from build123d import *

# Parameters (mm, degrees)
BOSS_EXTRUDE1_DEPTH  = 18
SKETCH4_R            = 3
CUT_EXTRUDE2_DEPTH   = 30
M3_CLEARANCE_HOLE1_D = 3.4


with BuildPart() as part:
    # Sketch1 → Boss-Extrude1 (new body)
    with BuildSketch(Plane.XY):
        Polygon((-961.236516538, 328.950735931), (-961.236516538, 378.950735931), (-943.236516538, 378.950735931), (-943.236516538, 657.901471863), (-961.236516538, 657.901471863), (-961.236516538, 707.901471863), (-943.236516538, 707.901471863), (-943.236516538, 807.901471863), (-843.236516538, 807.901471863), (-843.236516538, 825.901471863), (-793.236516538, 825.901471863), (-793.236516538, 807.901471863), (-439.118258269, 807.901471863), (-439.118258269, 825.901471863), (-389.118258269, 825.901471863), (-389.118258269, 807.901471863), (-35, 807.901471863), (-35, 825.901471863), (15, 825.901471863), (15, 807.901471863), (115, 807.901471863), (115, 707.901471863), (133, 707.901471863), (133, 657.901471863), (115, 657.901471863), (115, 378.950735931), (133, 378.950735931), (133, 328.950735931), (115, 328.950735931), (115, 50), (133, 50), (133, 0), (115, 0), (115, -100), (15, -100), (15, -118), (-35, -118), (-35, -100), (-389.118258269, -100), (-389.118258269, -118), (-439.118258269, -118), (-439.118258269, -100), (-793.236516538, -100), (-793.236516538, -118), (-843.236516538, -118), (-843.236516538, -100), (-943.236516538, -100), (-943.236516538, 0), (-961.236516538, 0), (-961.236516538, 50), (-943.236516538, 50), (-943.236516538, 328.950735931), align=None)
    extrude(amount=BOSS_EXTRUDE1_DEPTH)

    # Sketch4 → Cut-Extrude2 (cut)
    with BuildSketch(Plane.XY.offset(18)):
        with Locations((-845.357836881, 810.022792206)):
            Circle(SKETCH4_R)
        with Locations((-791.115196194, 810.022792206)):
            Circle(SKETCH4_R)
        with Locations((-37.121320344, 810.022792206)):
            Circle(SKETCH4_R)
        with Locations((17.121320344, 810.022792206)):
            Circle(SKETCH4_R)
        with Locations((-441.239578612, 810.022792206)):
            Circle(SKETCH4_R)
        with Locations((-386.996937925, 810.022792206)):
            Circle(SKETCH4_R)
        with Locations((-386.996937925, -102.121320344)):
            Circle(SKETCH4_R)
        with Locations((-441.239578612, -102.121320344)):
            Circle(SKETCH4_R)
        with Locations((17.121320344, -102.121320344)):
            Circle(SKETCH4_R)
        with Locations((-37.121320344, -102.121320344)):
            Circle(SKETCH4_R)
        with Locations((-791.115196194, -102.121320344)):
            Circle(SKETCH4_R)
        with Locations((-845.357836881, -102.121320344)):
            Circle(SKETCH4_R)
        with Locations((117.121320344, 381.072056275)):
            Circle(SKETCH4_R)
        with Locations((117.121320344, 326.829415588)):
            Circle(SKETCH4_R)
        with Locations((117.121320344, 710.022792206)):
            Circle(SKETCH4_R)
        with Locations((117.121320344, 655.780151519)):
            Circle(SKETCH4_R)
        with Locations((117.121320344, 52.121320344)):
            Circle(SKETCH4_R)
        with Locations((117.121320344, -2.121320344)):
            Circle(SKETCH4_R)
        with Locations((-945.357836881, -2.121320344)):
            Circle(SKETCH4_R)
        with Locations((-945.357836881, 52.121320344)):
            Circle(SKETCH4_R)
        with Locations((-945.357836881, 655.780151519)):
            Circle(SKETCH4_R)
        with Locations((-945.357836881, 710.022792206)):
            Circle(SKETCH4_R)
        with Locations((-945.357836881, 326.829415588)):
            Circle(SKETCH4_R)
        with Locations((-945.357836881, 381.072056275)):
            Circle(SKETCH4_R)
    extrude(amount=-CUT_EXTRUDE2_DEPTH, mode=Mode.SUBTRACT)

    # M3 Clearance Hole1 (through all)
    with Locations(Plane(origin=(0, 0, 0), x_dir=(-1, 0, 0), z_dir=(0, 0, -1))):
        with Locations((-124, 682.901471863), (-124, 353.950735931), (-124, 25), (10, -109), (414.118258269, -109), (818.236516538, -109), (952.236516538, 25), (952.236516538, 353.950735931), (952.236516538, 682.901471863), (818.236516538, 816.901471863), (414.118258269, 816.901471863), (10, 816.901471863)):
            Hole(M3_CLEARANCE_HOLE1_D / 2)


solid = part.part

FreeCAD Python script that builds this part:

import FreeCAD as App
import Part
import Sketcher
Q = App.Units.Quantity


def add_polygon(sketch, points):
    """Adds a closed chain of lines whose ends are joined by coincident constraints."""
    first, n = sketch.GeometryCount, len(points)
    for a, b in zip(points, points[1:] + points[:1]):
        sketch.addGeometry(Part.LineSegment(App.Vector(*a, 0), App.Vector(*b, 0)), False)
    for i in range(n):
        sketch.addConstraint(Sketcher.Constraint("Coincident", first + i, 2, first + (i + 1) % n, 1))

doc = App.newDocument("Part")
params = doc.addObject("Spreadsheet::Sheet", "Params")
for row, (alias, value) in enumerate([
    ("sketch1_width", "18 mm"),
    ("sketch1_width2", "100 mm"),
    ("sketch1_width3", "50 mm"),
    ("pad1_length", "18 mm"),
    ("sketch2_diameter", "6 mm"),
    ("pocket1_length", "30 mm"),
    ("sketch3_diameter", "3.4 mm"),
    ("hole_diameter", "3.4 mm"),
], start=1):
    params.set(f"A{row}", alias)
    params.set(f"B{row}", "=" + value)
    params.setAlias(f"B{row}", alias)

body = doc.addObject("PartDesign::Body", "Body")

# Sketch on XY plane
sketch1 = body.newObject("Sketcher::SketchObject", "Sketch")
sketch1.AttachmentSupport = (doc.getObject("XY_Plane"), [""])
sketch1.MapMode = "FlatFace"
add_polygon(sketch1, [(-961.236517, 378.950736), (-961.236517, 328.950736), (-943.236517, 328.950736), (-943.236517, 50), (-961.236517, 50), (-961.236517, 0), (-943.236517, 0), (-943.236517, -100), (-843.236517, -100), (-843.236517, -118), (-793.236517, -118), (-793.236517, -100), (-439.118258, -100), (-439.118258, -118), (-389.118258, -118), (-389.118258, -100), (-35, -100), (-35, -118), (15, -118), (15, -100), (115, -100), (115, 0), (133, 0), (133, 50), (115, 50), (115, 328.950736), (133, 328.950736), (133, 378.950736), (115, 378.950736), (115, 657.901472), (133, 657.901472), (133, 707.901472), (115, 707.901472), (115, 807.901472), (15, 807.901472), (15, 825.901472), (-35, 825.901472), (-35, 807.901472), (-389.118258, 807.901472), (-389.118258, 825.901472), (-439.118258, 825.901472), (-439.118258, 807.901472), (-793.236517, 807.901472), (-793.236517, 825.901472), (-843.236517, 825.901472), (-843.236517, 807.901472), (-943.236517, 807.901472), (-943.236517, 707.901472), (-961.236517, 707.901472), (-961.236517, 657.901472), (-943.236517, 657.901472), (-943.236517, 378.950736)])  # lines 0-51
sketch1.addConstraint(Sketcher.Constraint("Vertical", 0))
sketch1.addConstraint(Sketcher.Constraint("Horizontal", 1))
sketch1.addConstraint(Sketcher.Constraint("Vertical", 2))
sketch1.addConstraint(Sketcher.Constraint("Horizontal", 3))
sketch1.addConstraint(Sketcher.Constraint("Vertical", 4))
sketch1.addConstraint(Sketcher.Constraint("Horizontal", 5))
sketch1.addConstraint(Sketcher.Constraint("Vertical", 6))
sketch1.addConstraint(Sketcher.Constraint("Horizontal", 7))
sketch1.addConstraint(Sketcher.Constraint("Vertical", 8))
sketch1.addConstraint(Sketcher.Constraint("Horizontal", 9))
sketch1.addConstraint(Sketcher.Constraint("Vertical", 10))
sketch1.addConstraint(Sketcher.Constraint("Horizontal", 11))
sketch1.addConstraint(Sketcher.Constraint("Vertical", 12))
sketch1.addConstraint(Sketcher.Constraint("Horizontal", 13))
sketch1.addConstraint(Sketcher.Constraint("Vertical", 14))
sketch1.addConstraint(Sketcher.Constraint("Horizontal", 15))
sketch1.addConstraint(Sketcher.Constraint("Vertical", 16))
sketch1.addConstraint(Sketcher.Constraint("Horizontal", 17))
sketch1.addConstraint(Sketcher.Constraint("Vertical", 18))
sketch1.addConstraint(Sketcher.Constraint("Horizontal", 19))
sketch1.addConstraint(Sketcher.Constraint("Vertical", 20))
sketch1.addConstraint(Sketcher.Constraint("Horizontal", 21))
sketch1.addConstraint(Sketcher.Constraint("Vertical", 22))
sketch1.addConstraint(Sketcher.Constraint("Horizontal", 23))
sketch1.addConstraint(Sketcher.Constraint("Vertical", 24))
sketch1.addConstraint(Sketcher.Constraint("Horizontal", 25))
sketch1.addConstraint(Sketcher.Constraint("Vertical", 26))
sketch1.addConstraint(Sketcher.Constraint("Horizontal", 27))
sketch1.addConstraint(Sketcher.Constraint("Vertical", 28))
sketch1.addConstraint(Sketcher.Constraint("Horizontal", 29))
sketch1.addConstraint(Sketcher.Constraint("Vertical", 30))
sketch1.addConstraint(Sketcher.Constraint("Horizontal", 31))
sketch1.addConstraint(Sketcher.Constraint("Vertical", 32))
sketch1.addConstraint(Sketcher.Constraint("Horizontal", 33))
sketch1.addConstraint(Sketcher.Constraint("Vertical", 34))
sketch1.addConstraint(Sketcher.Constraint("Horizontal", 35))
sketch1.addConstraint(Sketcher.Constraint("Vertical", 36))
sketch1.addConstraint(Sketcher.Constraint("Horizontal", 37))
sketch1.addConstraint(Sketcher.Constraint("Vertical", 38))
sketch1.addConstraint(Sketcher.Constraint("Horizontal", 39))
sketch1.addConstraint(Sketcher.Constraint("Vertical", 40))
sketch1.addConstraint(Sketcher.Constraint("Horizontal", 41))
sketch1.addConstraint(Sketcher.Constraint("Vertical", 42))
sketch1.addConstraint(Sketcher.Constraint("Horizontal", 43))
sketch1.addConstraint(Sketcher.Constraint("Vertical", 44))
sketch1.addConstraint(Sketcher.Constraint("Horizontal", 45))
sketch1.addConstraint(Sketcher.Constraint("Vertical", 46))
sketch1.addConstraint(Sketcher.Constraint("Horizontal", 47))
sketch1.addConstraint(Sketcher.Constraint("Vertical", 48))
sketch1.addConstraint(Sketcher.Constraint("Horizontal", 49))
sketch1.addConstraint(Sketcher.Constraint("Vertical", 50))
sketch1.addConstraint(Sketcher.Constraint("Horizontal", 51))
sketch1.addConstraint(Sketcher.Constraint("PointOnObject", 4, 2, -1))
sketch1.addConstraint(Sketcher.Constraint("PointOnObject", 20, 2, -1))
sketch1.addConstraint(Sketcher.Constraint("Horizontal", 7, 2, 10, 2))
sketch1.addConstraint(Sketcher.Constraint("Horizontal", 9, 2, 12, 2))
sketch1.addConstraint(Sketcher.Constraint("Horizontal", 11, 2, 14, 2))
sketch1.addConstraint(Sketcher.Constraint("Horizontal", 13, 2, 16, 2))
sketch1.addConstraint(Sketcher.Constraint("Horizontal", 15, 2, 18, 2))
sketch1.addConstraint(Sketcher.Constraint("Horizontal", 3, 2, 22, 2))
sketch1.addConstraint(Sketcher.Constraint("Horizontal", 1, 2, 24, 2))
sketch1.addConstraint(Sketcher.Constraint("Horizontal", 33, 2, 36, 2))
sketch1.addConstraint(Sketcher.Constraint("Horizontal", 35, 2, 38, 2))
sketch1.addConstraint(Sketcher.Constraint("Horizontal", 37, 2, 40, 2))
sketch1.addConstraint(Sketcher.Constraint("Horizontal", 39, 2, 42, 2))
sketch1.addConstraint(Sketcher.Constraint("Horizontal", 41, 2, 44, 2))
sketch1.addConstraint(Sketcher.Constraint("Horizontal", 31, 2, 46, 2))
sketch1.addConstraint(Sketcher.Constraint("Horizontal", 29, 2, 48, 2))
sketch1.addConstraint(Sketcher.Constraint("Horizontal", 27, 2, 50, 2))
sketch1.addConstraint(Sketcher.Constraint("Vertical", 0, 2, 3, 2))
sketch1.addConstraint(Sketcher.Constraint("Vertical", 2, 2, 5, 2))
sketch1.addConstraint(Sketcher.Constraint("Vertical", 20, 2, 23, 2))
sketch1.addConstraint(Sketcher.Constraint("Vertical", 22, 2, 25, 2))
sketch1.addConstraint(Sketcher.Constraint("Vertical", 24, 2, 27, 2))
sketch1.addConstraint(Sketcher.Constraint("Vertical", 26, 2, 29, 2))
sketch1.addConstraint(Sketcher.Constraint("Vertical", 28, 2, 31, 2))
sketch1.addConstraint(Sketcher.Constraint("Vertical", 18, 2, 33, 2))
sketch1.addConstraint(Sketcher.Constraint("Vertical", 16, 2, 35, 2))
sketch1.addConstraint(Sketcher.Constraint("Vertical", 14, 2, 37, 2))
sketch1.addConstraint(Sketcher.Constraint("Vertical", 12, 2, 39, 2))
sketch1.addConstraint(Sketcher.Constraint("Vertical", 10, 2, 41, 2))
sketch1.addConstraint(Sketcher.Constraint("Vertical", 8, 2, 43, 2))
sketch1.addConstraint(Sketcher.Constraint("Vertical", 6, 2, 45, 2))
sketch1.addConstraint(Sketcher.Constraint("Vertical", 4, 2, 47, 2))
sketch1.addConstraint(Sketcher.Constraint("Vertical", 46, 2, 49, 2))
sketch1.addConstraint(Sketcher.Constraint("Equal", 9, 13))
sketch1.addConstraint(Sketcher.Constraint("Equal", 11, 15))
sketch1.addConstraint(Sketcher.Constraint("Equal", 13, 17))
sketch1.addConstraint(Sketcher.Constraint("Equal", 7, 19))
sketch1.addConstraint(Sketcher.Constraint("Equal", 5, 21))
sketch1.addConstraint(Sketcher.Constraint("Equal", 43, 0))
sketch1.addConstraint(Sketcher.Constraint("Equal", 0, 4))
sketch1.addConstraint(Sketcher.Constraint("Equal", 45, 6))
sketch1.addConstraint(Sketcher.Constraint("Equal", 51, 8))
sketch1.addConstraint(Sketcher.Constraint("Equal", 24, 28))
sketch1.addConstraint(Sketcher.Constraint("Equal", 26, 30))
sketch1.addConstraint(Sketcher.Constraint("Equal", 20, 32))
sketch1.addConstraint(Sketcher.Constraint("Equal", 18, 34))
sketch1.addConstraint(Sketcher.Constraint("DistanceX", 1, 1, 1, 2, Q("18 mm")))
sketch1.addConstraint(Sketcher.Constraint("DistanceX", 7, 1, 7, 2, Q("100 mm")))
sketch1.addConstraint(Sketcher.Constraint("DistanceX", 9, 1, 9, 2, Q("50 mm")))
sketch1.addConstraint(Sketcher.Constraint("DistanceX", 15, 2, -1, 1, Q("35 mm")))
sketch1.addConstraint(Sketcher.Constraint("DistanceX", 11, 1, 11, 2, Q("354.118258 mm")))
sketch1.addConstraint(Sketcher.Constraint("DistanceY", 2, 2, 2, 1, Q("278.950736 mm")))
sketch1.setExpression("Constraints[150]", "Params.sketch1_width")
sketch1.setExpression("Constraints[151]", "Params.sketch1_width2")
sketch1.setExpression("Constraints[152]", "Params.sketch1_width3")
pad1 = body.newObject("PartDesign::Pad", "Pad")
pad1.Profile = sketch1
pad1.setExpression("Length", "Params.pad1_length")

# Sketch on XY plane
sketch2 = body.newObject("Sketcher::SketchObject", "Sketch001")
sketch2.AttachmentSupport = (doc.getObject("XY_Plane"), [""])
sketch2.MapMode = "FlatFace"
sketch2.AttachmentOffset = App.Placement(App.Vector(0, 0, 18), App.Rotation())
sketch2.addGeometry(Part.Circle(App.Vector(-845.357837, 810.022792, 0), App.Vector(0, 0, 1), 3), False)
sketch2.addGeometry(Part.Circle(App.Vector(-791.115196, 810.022792, 0), App.Vector(0, 0, 1), 3), False)
sketch2.addGeometry(Part.Circle(App.Vector(-37.12132, 810.022792, 0), App.Vector(0, 0, 1), 3), False)
sketch2.addGeometry(Part.Circle(App.Vector(17.12132, 810.022792, 0), App.Vector(0, 0, 1), 3), False)
sketch2.addGeometry(Part.Circle(App.Vector(-441.239579, 810.022792, 0), App.Vector(0, 0, 1), 3), False)
sketch2.addGeometry(Part.Circle(App.Vector(-386.996938, 810.022792, 0), App.Vector(0, 0, 1), 3), False)
sketch2.addGeometry(Part.Circle(App.Vector(-386.996938, -102.12132, 0), App.Vector(0, 0, 1), 3), False)
sketch2.addGeometry(Part.Circle(App.Vector(-441.239579, -102.12132, 0), App.Vector(0, 0, 1), 3), False)
sketch2.addGeometry(Part.Circle(App.Vector(17.12132, -102.12132, 0), App.Vector(0, 0, 1), 3), False)
sketch2.addGeometry(Part.Circle(App.Vector(-37.12132, -102.12132, 0), App.Vector(0, 0, 1), 3), False)
sketch2.addGeometry(Part.Circle(App.Vector(-791.115196, -102.12132, 0), App.Vector(0, 0, 1), 3), False)
sketch2.addGeometry(Part.Circle(App.Vector(-845.357837, -102.12132, 0), App.Vector(0, 0, 1), 3), False)
sketch2.addGeometry(Part.Circle(App.Vector(117.12132, 381.072056, 0), App.Vector(0, 0, 1), 3), False)
sketch2.addGeometry(Part.Circle(App.Vector(117.12132, 326.829416, 0), App.Vector(0, 0, 1), 3), False)
sketch2.addGeometry(Part.Circle(App.Vector(117.12132, 710.022792, 0), App.Vector(0, 0, 1), 3), False)
sketch2.addGeometry(Part.Circle(App.Vector(117.12132, 655.780152, 0), App.Vector(0, 0, 1), 3), False)
sketch2.addGeometry(Part.Circle(App.Vector(117.12132, 52.12132, 0), App.Vector(0, 0, 1), 3), False)
sketch2.addGeometry(Part.Circle(App.Vector(117.12132, -2.12132, 0), App.Vector(0, 0, 1), 3), False)
sketch2.addGeometry(Part.Circle(App.Vector(-945.357837, -2.12132, 0), App.Vector(0, 0, 1), 3), False)
sketch2.addGeometry(Part.Circle(App.Vector(-945.357837, 52.12132, 0), App.Vector(0, 0, 1), 3), False)
sketch2.addGeometry(Part.Circle(App.Vector(-945.357837, 655.780152, 0), App.Vector(0, 0, 1), 3), False)
sketch2.addGeometry(Part.Circle(App.Vector(-945.357837, 710.022792, 0), App.Vector(0, 0, 1), 3), False)
sketch2.addGeometry(Part.Circle(App.Vector(-945.357837, 326.829416, 0), App.Vector(0, 0, 1), 3), False)
sketch2.addGeometry(Part.Circle(App.Vector(-945.357837, 381.072056, 0), App.Vector(0, 0, 1), 3), False)
sketch2.addConstraint(Sketcher.Constraint("Equal", 0, 1))
sketch2.addConstraint(Sketcher.Constraint("Equal", 1, 2))
sketch2.addConstraint(Sketcher.Constraint("Equal", 2, 3))
sketch2.addConstraint(Sketcher.Constraint("Equal", 3, 4))
sketch2.addConstraint(Sketcher.Constraint("Equal", 4, 5))
sketch2.addConstraint(Sketcher.Constraint("Equal", 5, 6))
sketch2.addConstraint(Sketcher.Constraint("Equal", 6, 7))
sketch2.addConstraint(Sketcher.Constraint("Equal", 7, 8))
sketch2.addConstraint(Sketcher.Constraint("Equal", 8, 9))
sketch2.addConstraint(Sketcher.Constraint("Equal", 9, 10))
sketch2.addConstraint(Sketcher.Constraint("Equal", 10, 11))
sketch2.addConstraint(Sketcher.Constraint("Equal", 11, 12))
sketch2.addConstraint(Sketcher.Constraint("Equal", 12, 13))
sketch2.addConstraint(Sketcher.Constraint("Equal", 13, 14))
sketch2.addConstraint(Sketcher.Constraint("Equal", 14, 15))
sketch2.addConstraint(Sketcher.Constraint("Equal", 15, 16))
sketch2.addConstraint(Sketcher.Constraint("Equal", 16, 17))
sketch2.addConstraint(Sketcher.Constraint("Equal", 17, 18))
sketch2.addConstraint(Sketcher.Constraint("Equal", 18, 19))
sketch2.addConstraint(Sketcher.Constraint("Equal", 19, 20))
sketch2.addConstraint(Sketcher.Constraint("Equal", 20, 21))
sketch2.addConstraint(Sketcher.Constraint("Equal", 21, 22))
sketch2.addConstraint(Sketcher.Constraint("Equal", 22, 23))
sketch2.addConstraint(Sketcher.Constraint("Horizontal", 0, 3, 1, 3))
sketch2.addConstraint(Sketcher.Constraint("Horizontal", 1, 3, 2, 3))
sketch2.addConstraint(Sketcher.Constraint("Horizontal", 2, 3, 3, 3))
sketch2.addConstraint(Sketcher.Constraint("Horizontal", 3, 3, 4, 3))
sketch2.addConstraint(Sketcher.Constraint("Horizontal", 4, 3, 5, 3))
sketch2.addConstraint(Sketcher.Constraint("Horizontal", 6, 3, 7, 3))
sketch2.addConstraint(Sketcher.Constraint("Horizontal", 7, 3, 8, 3))
sketch2.addConstraint(Sketcher.Constraint("Horizontal", 8, 3, 9, 3))
sketch2.addConstraint(Sketcher.Constraint("Horizontal", 9, 3, 10, 3))
sketch2.addConstraint(Sketcher.Constraint("Horizontal", 10, 3, 11, 3))
sketch2.addConstraint(Sketcher.Constraint("Horizontal", 17, 3, 18, 3))
sketch2.addConstraint(Sketcher.Constraint("Horizontal", 16, 3, 19, 3))
sketch2.addConstraint(Sketcher.Constraint("Horizontal", 15, 3, 20, 3))
sketch2.addConstraint(Sketcher.Constraint("Horizontal", 14, 3, 21, 3))
sketch2.addConstraint(Sketcher.Constraint("Horizontal", 13, 3, 22, 3))
sketch2.addConstraint(Sketcher.Constraint("Horizontal", 12, 3, 23, 3))
sketch2.addConstraint(Sketcher.Constraint("Vertical", 5, 3, 6, 3))
sketch2.addConstraint(Sketcher.Constraint("Vertical", 4, 3, 7, 3))
sketch2.addConstraint(Sketcher.Constraint("Vertical", 3, 3, 8, 3))
sketch2.addConstraint(Sketcher.Constraint("Vertical", 2, 3, 9, 3))
sketch2.addConstraint(Sketcher.Constraint("Vertical", 1, 3, 10, 3))
sketch2.addConstraint(Sketcher.Constraint("Vertical", 0, 3, 11, 3))
sketch2.addConstraint(Sketcher.Constraint("Vertical", 12, 3, 13, 3))
sketch2.addConstraint(Sketcher.Constraint("Vertical", 13, 3, 14, 3))
sketch2.addConstraint(Sketcher.Constraint("Vertical", 14, 3, 15, 3))
sketch2.addConstraint(Sketcher.Constraint("Vertical", 15, 3, 16, 3))
sketch2.addConstraint(Sketcher.Constraint("Vertical", 16, 3, 17, 3))
sketch2.addConstraint(Sketcher.Constraint("Vertical", 18, 3, 19, 3))
sketch2.addConstraint(Sketcher.Constraint("Vertical", 19, 3, 20, 3))
sketch2.addConstraint(Sketcher.Constraint("Vertical", 20, 3, 21, 3))
sketch2.addConstraint(Sketcher.Constraint("Vertical", 21, 3, 22, 3))
sketch2.addConstraint(Sketcher.Constraint("Vertical", 22, 3, 23, 3))
sketch2.addConstraint(Sketcher.Constraint("Diameter", 0, Q("6 mm")))
sketch2.addConstraint(Sketcher.Constraint("DistanceX", 3, 3, 12, 3, Q("100 mm")))
sketch2.addConstraint(Sketcher.Constraint("DistanceY", 14, 3, 3, 3, Q("100 mm")))
sketch2.addConstraint(Sketcher.Constraint("DistanceY", 8, 3, 17, 3, Q("100 mm")))
sketch2.addConstraint(Sketcher.Constraint("DistanceX", 18, 3, 11, 3, Q("100 mm")))
sketch2.addConstraint(Sketcher.Constraint("DistanceX", 4, 3, 3, 3, Q("458.360899 mm")))
sketch2.addConstraint(Sketcher.Constraint("DistanceX", 0, 3, 5, 3, Q("458.360899 mm")))
sketch2.addConstraint(Sketcher.Constraint("DistanceX", 2, 3, -1, 1, Q("37.12132 mm")))
sketch2.addConstraint(Sketcher.Constraint("DistanceX", -1, 1, 3, 3, Q("17.12132 mm")))
sketch2.addConstraint(Sketcher.Constraint("DistanceY", 6, 3, -1, 1, Q("102.12132 mm")))
sketch2.addConstraint(Sketcher.Constraint("DistanceY", -1, 1, 15, 3, Q("655.780152 mm")))
sketch2.addConstraint(Sketcher.Constraint("DistanceY", -1, 1, 16, 3, Q("52.12132 mm")))
sketch2.addConstraint(Sketcher.Constraint("DistanceX", 0, 3, 1, 3, Q("54.242641 mm")))
sketch2.addConstraint(Sketcher.Constraint("DistanceX", 0, 3, 4, 3, Q("404.118258 mm")))
sketch2.addConstraint(Sketcher.Constraint("DistanceY", 13, 3, 12, 3, Q("54.242641 mm")))
sketch2.addConstraint(Sketcher.Constraint("DistanceY", 15, 3, 14, 3, Q("54.242641 mm")))
sketch2.addConstraint(Sketcher.Constraint("DistanceY", -1, 1, 12, 3, Q("381.072056 mm")))
sketch2.setExpression("Constraints[55]", "Params.sketch2_diameter")
pocket1 = body.newObject("PartDesign::Pocket", "Pocket")
pocket1.Profile = sketch2
pocket1.setExpression("Length", "Params.pocket1_length")

# Sketch on XY plane
sketch3 = body.newObject("Sketcher::SketchObject", "Sketch002")
sketch3.AttachmentSupport = (doc.getObject("XY_Plane"), [""])
sketch3.MapMode = "FlatFace"
sketch3.addGeometry(Part.Circle(App.Vector(124, 682.901472, 0), App.Vector(0, 0, 1), 1.7), False)
sketch3.addGeometry(Part.Circle(App.Vector(124, 353.950736, 0), App.Vector(0, 0, 1), 1.7), False)
sketch3.addGeometry(Part.Circle(App.Vector(124, 25, 0), App.Vector(0, 0, 1), 1.7), False)
sketch3.addGeometry(Part.Circle(App.Vector(-10, -109, 0), App.Vector(0, 0, 1), 1.7), False)
sketch3.addGeometry(Part.Circle(App.Vector(-414.118258, -109, 0), App.Vector(0, 0, 1), 1.7), False)
sketch3.addGeometry(Part.Circle(App.Vector(-818.236517, -109, 0), App.Vector(0, 0, 1), 1.7), False)
sketch3.addGeometry(Part.Circle(App.Vector(-952.236517, 25, 0), App.Vector(0, 0, 1), 1.7), False)
sketch3.addGeometry(Part.Circle(App.Vector(-952.236517, 353.950736, 0), App.Vector(0, 0, 1), 1.7), False)
sketch3.addGeometry(Part.Circle(App.Vector(-952.236517, 682.901472, 0), App.Vector(0, 0, 1), 1.7), False)
sketch3.addGeometry(Part.Circle(App.Vector(-818.236517, 816.901472, 0), App.Vector(0, 0, 1), 1.7), False)
sketch3.addGeometry(Part.Circle(App.Vector(-414.118258, 816.901472, 0), App.Vector(0, 0, 1), 1.7), False)
sketch3.addGeometry(Part.Circle(App.Vector(-10, 816.901472, 0), App.Vector(0, 0, 1), 1.7), False)
sketch3.addConstraint(Sketcher.Constraint("Equal", 0, 1))
sketch3.addConstraint(Sketcher.Constraint("Equal", 1, 2))
sketch3.addConstraint(Sketcher.Constraint("Equal", 2, 3))
sketch3.addConstraint(Sketcher.Constraint("Equal", 3, 4))
sketch3.addConstraint(Sketcher.Constraint("Equal", 4, 5))
sketch3.addConstraint(Sketcher.Constraint("Equal", 5, 6))
sketch3.addConstraint(Sketcher.Constraint("Equal", 6, 7))
sketch3.addConstraint(Sketcher.Constraint("Equal", 7, 8))
sketch3.addConstraint(Sketcher.Constraint("Equal", 8, 9))
sketch3.addConstraint(Sketcher.Constraint("Equal", 9, 10))
sketch3.addConstraint(Sketcher.Constraint("Equal", 10, 11))
sketch3.addConstraint(Sketcher.Constraint("Horizontal", 3, 3, 4, 3))
sketch3.addConstraint(Sketcher.Constraint("Horizontal", 4, 3, 5, 3))
sketch3.addConstraint(Sketcher.Constraint("Horizontal", 2, 3, 6, 3))
sketch3.addConstraint(Sketcher.Constraint("Horizontal", 1, 3, 7, 3))
sketch3.addConstraint(Sketcher.Constraint("Horizontal", 0, 3, 8, 3))
sketch3.addConstraint(Sketcher.Constraint("Horizontal", 9, 3, 10, 3))
sketch3.addConstraint(Sketcher.Constraint("Horizontal", 10, 3, 11, 3))
sketch3.addConstraint(Sketcher.Constraint("Vertical", 0, 3, 1, 3))
sketch3.addConstraint(Sketcher.Constraint("Vertical", 1, 3, 2, 3))
sketch3.addConstraint(Sketcher.Constraint("Vertical", 6, 3, 7, 3))
sketch3.addConstraint(Sketcher.Constraint("Vertical", 7, 3, 8, 3))
sketch3.addConstraint(Sketcher.Constraint("Vertical", 5, 3, 9, 3))
sketch3.addConstraint(Sketcher.Constraint("Vertical", 4, 3, 10, 3))
sketch3.addConstraint(Sketcher.Constraint("Vertical", 3, 3, 11, 3))
sketch3.addConstraint(Sketcher.Constraint("Diameter", 0, Q("3.4 mm")))
sketch3.addConstraint(Sketcher.Constraint("DistanceX", -1, 1, 0, 3, Q("124 mm")))
sketch3.addConstraint(Sketcher.Constraint("DistanceY", -1, 1, 2, 3, Q("25 mm")))
sketch3.addConstraint(Sketcher.Constraint("DistanceX", 3, 3, -1, 1, Q("10 mm")))
sketch3.addConstraint(Sketcher.Constraint("DistanceY", 3, 3, -1, 1, Q("109 mm")))
sketch3.addConstraint(Sketcher.Constraint("DistanceX", 6, 3, 5, 3, Q("134 mm")))
sketch3.addConstraint(Sketcher.Constraint("DistanceY", 8, 3, 9, 3, Q("134 mm")))
sketch3.addConstraint(Sketcher.Constraint("DistanceY", -1, 1, 0, 3, Q("682.901472 mm")))
sketch3.addConstraint(Sketcher.Constraint("DistanceX", 4, 3, -1, 1, Q("414.118258 mm")))
sketch3.addConstraint(Sketcher.Constraint("DistanceX", 5, 3, 4, 3, Q("404.118258 mm")))
sketch3.addConstraint(Sketcher.Constraint("DistanceY", -1, 1, 1, 3, Q("353.950736 mm")))
sketch3.setExpression("Constraints[25]", "Params.sketch3_diameter")
doc.recompute()
hole = body.newObject("PartDesign::Hole", "Hole")
hole.Profile = sketch3
hole.ThreadType = "None"
hole.setExpression("Diameter", "Params.hole_diameter")
hole.DepthType = "ThroughAll"
hole.Reversed = True

doc.recompute()
